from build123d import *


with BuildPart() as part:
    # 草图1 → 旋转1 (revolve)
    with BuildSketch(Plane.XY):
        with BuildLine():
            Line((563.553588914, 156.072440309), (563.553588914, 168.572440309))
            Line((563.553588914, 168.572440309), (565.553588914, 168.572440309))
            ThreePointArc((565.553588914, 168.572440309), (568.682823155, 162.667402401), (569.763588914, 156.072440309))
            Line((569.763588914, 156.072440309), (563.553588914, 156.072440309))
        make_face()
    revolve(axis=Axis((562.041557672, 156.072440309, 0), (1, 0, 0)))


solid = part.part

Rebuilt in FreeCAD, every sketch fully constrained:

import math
import FreeCAD as App
import Part
import Sketcher

doc = App.newDocument("Part")
body = doc.addObject("PartDesign::Body", "Body")

# Sketch on XY plane
sketch1 = body.newObject("Sketcher::SketchObject", "Sketch")
sketch1.AttachmentSupport = (doc.getObject("XY_Plane"), [""])
sketch1.MapMode = "FlatFace"
sketch1.addGeometry(Part.LineSegment(App.Vector(563.6, 168.6, 0), App.Vector(563.6, 156.1, 0)), False)
sketch1.addGeometry(Part.LineSegment(App.Vector(563.6, 156.1, 0), App.Vector(569.8, 156.1, 0)), False)
sketch1.addGeometry(Part.ArcOfCircle(Part.Circle(App.Vector(549.1, 156.1, 0), App.Vector(0, 0, 1), 20.7), math.radians(0), math.radians(37)), False)
sketch1.addGeometry(Part.LineSegment(App.Vector(565.6, 168.6, 0), App.Vector(563.6, 168.6, 0)), False)
sketch1.addGeometry(Part.LineSegment(App.Vector(549.1, 156.1, 0), App.Vector(569.8, 156.1, 0)), True)  # axis
sketch1.addConstraint(Sketcher.Constraint("Coincident", 0, 2, 1, 1))
sketch1.addConstraint(Sketcher.Constraint("Coincident", 1, 2, 2, 1))
sketch1.addConstraint(Sketcher.Constraint("Coincident", 2, 2, 3, 1))
sketch1.addConstraint(Sketcher.Constraint("Coincident", 3, 2, 0, 1))
sketch1.addConstraint(Sketcher.Constraint("Vertical", 0))
sketch1.addConstraint(Sketcher.Constraint("Horizontal", 1))
sketch1.addConstraint(Sketcher.Constraint("Horizontal", 3))
sketch1.addConstraint(Sketcher.Constraint("Horizontal", 4))
sketch1.addConstraint(Sketcher.Constraint("Coincident", 4, 1, 2, 3))
sketch1.addConstraint(Sketcher.Constraint("Coincident", 4, 2, 1, 2))
sketch1.addConstraint(Sketcher.Constraint("DistanceX", 3, 2, 3, 1, 2.0))
sketch1.addConstraint(Sketcher.Constraint("DistanceY", 0, 2, 0, 1, 12.5))
sketch1.addConstraint(Sketcher.Constraint("DistanceX", 1, 1, 1, 2, 6.21))
sketch1.addConstraint(Sketcher.Constraint("DistanceX", -1, 1, 2, 3, 549.101582))
sketch1.addConstraint(Sketcher.Constraint("DistanceY", -1, 1, 2, 3, 156.07244))
revolution = body.newObject("PartDesign::Revolution", "Revolution")
revolution.Profile = sketch1
revolution.ReferenceAxis = (sketch1, ["Axis0"])
revolution.Angle = 360

doc.recompute()
